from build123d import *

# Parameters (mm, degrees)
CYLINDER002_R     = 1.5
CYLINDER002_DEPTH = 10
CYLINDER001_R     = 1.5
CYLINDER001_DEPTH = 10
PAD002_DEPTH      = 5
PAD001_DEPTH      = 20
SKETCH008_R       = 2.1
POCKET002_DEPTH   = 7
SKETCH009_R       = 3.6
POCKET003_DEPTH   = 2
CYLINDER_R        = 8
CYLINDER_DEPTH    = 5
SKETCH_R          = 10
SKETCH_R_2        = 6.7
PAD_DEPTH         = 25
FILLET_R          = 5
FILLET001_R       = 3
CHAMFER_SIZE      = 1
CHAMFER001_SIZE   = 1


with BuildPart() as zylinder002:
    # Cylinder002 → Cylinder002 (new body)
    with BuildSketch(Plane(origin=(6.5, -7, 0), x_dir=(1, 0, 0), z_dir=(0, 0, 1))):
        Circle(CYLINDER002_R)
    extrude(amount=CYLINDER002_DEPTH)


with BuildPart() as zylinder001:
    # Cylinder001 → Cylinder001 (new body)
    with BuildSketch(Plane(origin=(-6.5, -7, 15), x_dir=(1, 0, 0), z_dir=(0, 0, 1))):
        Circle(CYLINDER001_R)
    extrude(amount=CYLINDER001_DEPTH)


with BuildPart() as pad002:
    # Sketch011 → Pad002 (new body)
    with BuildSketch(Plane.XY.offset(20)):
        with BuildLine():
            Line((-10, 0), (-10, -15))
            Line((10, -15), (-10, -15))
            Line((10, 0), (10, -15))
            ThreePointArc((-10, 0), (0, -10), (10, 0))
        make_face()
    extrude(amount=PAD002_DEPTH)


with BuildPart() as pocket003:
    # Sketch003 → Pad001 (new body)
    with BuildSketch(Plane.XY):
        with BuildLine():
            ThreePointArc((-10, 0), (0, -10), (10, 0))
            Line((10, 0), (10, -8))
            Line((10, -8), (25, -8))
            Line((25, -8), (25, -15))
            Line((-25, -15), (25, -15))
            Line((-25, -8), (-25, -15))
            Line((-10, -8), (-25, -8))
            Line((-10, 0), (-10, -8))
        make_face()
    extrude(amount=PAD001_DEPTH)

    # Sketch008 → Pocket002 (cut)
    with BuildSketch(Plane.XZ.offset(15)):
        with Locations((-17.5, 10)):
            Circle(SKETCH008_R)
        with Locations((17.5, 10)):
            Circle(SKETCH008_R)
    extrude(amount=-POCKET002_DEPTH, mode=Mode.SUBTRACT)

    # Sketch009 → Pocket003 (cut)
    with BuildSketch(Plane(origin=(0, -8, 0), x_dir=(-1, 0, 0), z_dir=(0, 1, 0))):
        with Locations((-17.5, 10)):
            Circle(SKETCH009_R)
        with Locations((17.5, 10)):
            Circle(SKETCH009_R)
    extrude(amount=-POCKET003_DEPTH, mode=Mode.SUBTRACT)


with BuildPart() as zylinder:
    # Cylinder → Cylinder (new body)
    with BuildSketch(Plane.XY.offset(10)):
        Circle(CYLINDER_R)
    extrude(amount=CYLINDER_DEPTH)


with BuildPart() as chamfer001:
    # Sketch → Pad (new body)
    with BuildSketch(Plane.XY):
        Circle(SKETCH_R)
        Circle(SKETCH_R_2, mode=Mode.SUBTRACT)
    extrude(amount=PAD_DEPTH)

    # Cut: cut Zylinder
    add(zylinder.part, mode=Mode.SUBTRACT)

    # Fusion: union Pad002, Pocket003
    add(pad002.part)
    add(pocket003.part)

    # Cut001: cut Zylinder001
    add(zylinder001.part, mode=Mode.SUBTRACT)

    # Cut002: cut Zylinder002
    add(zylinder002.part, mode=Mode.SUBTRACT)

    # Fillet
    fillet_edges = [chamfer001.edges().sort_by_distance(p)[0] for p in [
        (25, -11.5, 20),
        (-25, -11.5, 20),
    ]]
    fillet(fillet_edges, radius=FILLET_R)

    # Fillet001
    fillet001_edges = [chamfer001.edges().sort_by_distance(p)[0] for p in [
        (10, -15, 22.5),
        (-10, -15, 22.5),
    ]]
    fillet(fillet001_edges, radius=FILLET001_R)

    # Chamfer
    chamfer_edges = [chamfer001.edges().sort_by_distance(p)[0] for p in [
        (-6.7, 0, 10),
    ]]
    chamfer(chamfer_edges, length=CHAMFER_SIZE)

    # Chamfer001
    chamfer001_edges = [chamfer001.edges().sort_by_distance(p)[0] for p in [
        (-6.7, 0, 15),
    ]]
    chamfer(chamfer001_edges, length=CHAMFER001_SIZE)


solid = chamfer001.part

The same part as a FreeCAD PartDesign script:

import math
import FreeCAD as App
import Part
import Sketcher


def edges_at(feature, points):
    """Names of the edges that pass closest to the given points."""
    edges = feature.Shape.Edges
    near = lambda p: min(range(len(edges)), key=lambda i: edges[i].distToShape(Part.Vertex(*p))[0])
    return sorted({f"Edge{near(p) + 1}" for p in points})

doc = App.newDocument("Part")
body = doc.addObject("PartDesign::Body", "Body")

# Sketch on XY plane
sketch1 = body.newObject("Sketcher::SketchObject", "Sketch")
sketch1.AttachmentSupport = (doc.getObject("XY_Plane"), [""])
sketch1.MapMode = "FlatFace"
sketch1.addGeometry(Part.Circle(App.Vector(6.5, -7, 0), App.Vector(0, 0, 1), 1.5), False)
sketch1.addConstraint([
    Sketcher.Constraint("Diameter", 0, 3.0),
    Sketcher.Constraint("DistanceY", 0, 3, -1, 1, 7.0),
    Sketcher.Constraint("DistanceX", -1, 1, 0, 3, 6.5),
])
pad1 = body.newObject("PartDesign::Pad", "Pad")
pad1.Profile = sketch1
pad1.Length = 10
body2 = doc.addObject("PartDesign::Body", "Body001")

# Sketch on XY plane
sketch2 = body2.newObject("Sketcher::SketchObject", "Sketch001")
sketch2.AttachmentSupport = (doc.getObject("XY_Plane001"), [""])
sketch2.MapMode = "FlatFace"
sketch2.AttachmentOffset = App.Placement(App.Vector(0, 0, 15), App.Rotation())
sketch2.addGeometry(Part.Circle(App.Vector(-6.5, -7, 0), App.Vector(0, 0, 1), 1.5), False)
sketch2.addConstraint([
    Sketcher.Constraint("Diameter", 0, 3.0),
    Sketcher.Constraint("DistanceY", 0, 3, -1, 1, 7.0),
    Sketcher.Constraint("DistanceX", 0, 3, -1, 1, 6.5),
])
pad2 = body2.newObject("PartDesign::Pad", "Pad001")
pad2.Profile = sketch2
pad2.Length = 10
body3 = doc.addObject("PartDesign::Body", "Body002")

# Sketch on XY plane
sketch3 = body3.newObject("Sketcher::SketchObject", "Sketch002")
sketch3.AttachmentSupport = (doc.getObject("XY_Plane002"), [""])
sketch3.MapMode = "FlatFace"
sketch3.AttachmentOffset = App.Placement(App.Vector(0, 0, 20), App.Rotation())
sketch3.addGeometry([
    Part.LineSegment(App.Vector(-10, 0, 0), App.Vector(-10, -15, 0)),
    Part.LineSegment(App.Vector(-10, -15, 0), App.Vector(10, -15, 0)),
    Part.LineSegment(App.Vector(10, -15, 0), App.Vector(10, 0, 0)),
    Part.ArcOfCircle(Part.Circle(App.Vector(0, 0, 0), App.Vector(0, 0, 1), 10), math.radians(180), math.radians(360)),
], False)
sketch3.addConstraint([
    Sketcher.Constraint("Coincident", 0, 2, 1, 1),
    Sketcher.Constraint("Coincident", 1, 2, 2, 1),
    Sketcher.Constraint("Tangent", 2, 2, 3, 2),
    Sketcher.Constraint("Tangent", 3, 1, 0, 1),
    Sketcher.Constraint("Vertical", 0),
    Sketcher.Constraint("Horizontal", 1),
    Sketcher.Constraint("Vertical", 2),
    Sketcher.Constraint("Coincident", 3, 3, -1, 1),
    Sketcher.Constraint("Radius", 3, 10.0),
    Sketcher.Constraint("DistanceY", 0, 2, 0, 1, 15.0),
])
pad3 = body3.newObject("PartDesign::Pad", "Pad002")
pad3.Profile = sketch3
pad3.Length = 5
body4 = doc.addObject("PartDesign::Body", "Body003")

# Sketch on XY plane
sketch4 = body4.newObject("Sketcher::SketchObject", "Sketch003")
sketch4.AttachmentSupport = (doc.getObject("XY_Plane003"), [""])
sketch4.MapMode = "FlatFace"
sketch4.addGeometry([
    Part.ArcOfCircle(Part.Circle(App.Vector(0, 0, 0), App.Vector(0, 0, 1), 10), math.radians(180), math.radians(360)),  # 0
    Part.LineSegment(App.Vector(-10, 0, 0), App.Vector(-10, -8, 0)),  # 1
    Part.LineSegment(App.Vector(-10, -8, 0), App.Vector(-25, -8, 0)),  # 2
    Part.LineSegment(App.Vector(-25, -8, 0), App.Vector(-25, -15, 0)),  # 3
    Part.LineSegment(App.Vector(-25, -15, 0), App.Vector(25, -15, 0)),  # 4
    Part.LineSegment(App.Vector(25, -15, 0), App.Vector(25, -8, 0)),  # 5
    Part.LineSegment(App.Vector(25, -8, 0), App.Vector(10, -8, 0)),  # 6
    Part.LineSegment(App.Vector(10, -8, 0), App.Vector(10, 0, 0)),  # 7
], False)
sketch4.addConstraint([
    Sketcher.Constraint("Tangent", 0, 1, 1, 1),
    Sketcher.Constraint("Coincident", 1, 2, 2, 1),
    Sketcher.Constraint("Coincident", 2, 2, 3, 1),
    Sketcher.Constraint("Coincident", 3, 2, 4, 1),
    Sketcher.Constraint("Coincident", 4, 2, 5, 1),
    Sketcher.Constraint("Coincident", 5, 2, 6, 1),
    Sketcher.Constraint("Coincident", 6, 2, 7, 1),
    Sketcher.Constraint("Tangent", 7, 2, 0, 2),
    Sketcher.Constraint("Vertical", 1),
    Sketcher.Constraint("Horizontal", 2),
    Sketcher.Constraint("Vertical", 3),
    Sketcher.Constraint("Horizontal", 4),
    Sketcher.Constraint("Vertical", 5),
    Sketcher.Constraint("Horizontal", 6),
    Sketcher.Constraint("Vertical", 7),
    Sketcher.Constraint("Coincident", 0, 3, -1, 1),
    Sketcher.Constraint("Symmetric", 2, 2, 5, 2, -2),
    Sketcher.Constraint("Radius", 0, 10.0),
    Sketcher.Constraint("DistanceX", 2, 2, 2, 1, 15.0),
    Sketcher.Constraint("DistanceY", 1, 2, 1, 1, 8.0),
    Sketcher.Constraint("DistanceY", 3, 2, 3, 1, 7.0),
])
pad4 = body4.newObject("PartDesign::Pad", "Pad003")
pad4.Profile = sketch4
pad4.Length = 20

# Sketch on XZ plane
sketch5 = body4.newObject("Sketcher::SketchObject", "Sketch004")
sketch5.AttachmentSupport = (doc.getObject("XZ_Plane003"), [""])
sketch5.MapMode = "FlatFace"
sketch5.AttachmentOffset = App.Placement(App.Vector(0, 0, 15), App.Rotation())
sketch5.addGeometry([
    Part.Circle(App.Vector(-17.5, 10, 0), App.Vector(0, 0, 1), 2.1),
    Part.Circle(App.Vector(17.5, 10, 0), App.Vector(0, 0, 1), 2.1),
], False)
sketch5.addConstraint([
    Sketcher.Constraint("Equal", 0, 1),
    Sketcher.Constraint("Symmetric", 0, 3, 1, 3, -2),
    Sketcher.Constraint("Diameter", 0, 4.2),
    Sketcher.Constraint("DistanceY", -1, 1, 0, 3, 10.0),
    Sketcher.Constraint("DistanceX", 0, 3, 1, 3, 35.0),
])
pocket1 = body4.newObject("PartDesign::Pocket", "Pocket")
pocket1.Profile = sketch5
pocket1.Length = 7

# Sketch on XZ plane
sketch6 = body4.newObject("Sketcher::SketchObject", "Sketch005")
sketch6.AttachmentSupport = (doc.getObject("XZ_Plane003"), [""])
sketch6.MapMode = "FlatFace"
sketch6.AttachmentOffset = App.Placement(App.Vector(0, 0, 8), App.Rotation())
sketch6.addGeometry([
    Part.Circle(App.Vector(17.5, 10, 0), App.Vector(0, 0, 1), 3.6),
    Part.Circle(App.Vector(-17.5, 10, 0), App.Vector(0, 0, 1), 3.6),
], False)
sketch6.addConstraint([
    Sketcher.Constraint("Equal", 0, 1),
    Sketcher.Constraint("Symmetric", 0, 3, 1, 3, -2),
    Sketcher.Constraint("Diameter", 0, 7.2),
    Sketcher.Constraint("DistanceY", -1, 1, 0, 3, 10.0),
    Sketcher.Constraint("DistanceX", 1, 3, 0, 3, 35.0),
])
pocket2 = body4.newObject("PartDesign::Pocket", "Pocket001")
pocket2.Profile = sketch6
pocket2.Length = 2
pocket2.Reversed = True
body5 = doc.addObject("PartDesign::Body", "Body004")

# Sketch on XY plane
sketch7 = body5.newObject("Sketcher::SketchObject", "Sketch006")
sketch7.AttachmentSupport = (doc.getObject("XY_Plane004"), [""])
sketch7.MapMode = "FlatFace"
sketch7.AttachmentOffset = App.Placement(App.Vector(0, 0, 10), App.Rotation())
sketch7.addGeometry(Part.Circle(App.Vector(0, 0, 0), App.Vector(0, 0, 1), 8), False)
sketch7.addConstraint([
    Sketcher.Constraint("Coincident", 0, 3, -1, 1),
    Sketcher.Constraint("Diameter", 0, 16.0),
])
pad5 = body5.newObject("PartDesign::Pad", "Pad004")
pad5.Profile = sketch7
pad5.Length = 5
body6 = doc.addObject("PartDesign::Body", "Body005")

# Sketch on XY plane
sketch8 = body6.newObject("Sketcher::SketchObject", "Sketch007")
sketch8.AttachmentSupport = (doc.getObject("XY_Plane005"), [""])
sketch8.MapMode = "FlatFace"
sketch8.addGeometry([
    Part.Circle(App.Vector(0, 0, 0), App.Vector(0, 0, 1), 10),
    Part.Circle(App.Vector(0, 0, 0), App.Vector(0, 0, 1), 6.7),
], False)
sketch8.addConstraint([
    Sketcher.Constraint("Coincident", 0, 3, -1, 1),
    Sketcher.Constraint("Coincident", 1, 3, -1, 1),
    Sketcher.Constraint("Diameter", 0, 20.0),
    Sketcher.Constraint("Diameter", 1, 13.4),
])
pad6 = body6.newObject("PartDesign::Pad", "Pad005")
pad6.Profile = sketch8
pad6.Length = 25
doc.recompute()

boolean = body6.newObject("PartDesign::Boolean", "Boolean")
boolean.Type = "Cut"
boolean.addObjects([body5])
doc.recompute()

boolean2 = body6.newObject("PartDesign::Boolean", "Boolean001")
boolean2.Type = "Fuse"
boolean2.addObjects([body3])
doc.recompute()

boolean3 = body6.newObject("PartDesign::Boolean", "Boolean002")
boolean3.Type = "Fuse"
boolean3.addObjects([body4])
doc.recompute()

boolean4 = body6.newObject("PartDesign::Boolean", "Boolean003")
boolean4.Type = "Cut"
boolean4.addObjects([body2])
doc.recompute()

boolean5 = body6.newObject("PartDesign::Boolean", "Boolean004")
boolean5.Type = "Cut"
boolean5.addObjects([body])
doc.recompute()

fillet = body6.newObject("PartDesign::Fillet", "Fillet")
fillet.Base = (boolean5, edges_at(boolean5, [(25, -11.5, 20), (-25, -11.5, 20)]))
fillet.Radius = 5
doc.recompute()

fillet2 = body6.newObject("PartDesign::Fillet", "Fillet001")
fillet2.Base = (fillet, edges_at(fillet, [(10, -15, 22.5), (-10, -15, 22.5)]))
fillet2.Radius = 3
doc.recompute()

chamfer = body6.newObject("PartDesign::Chamfer", "Chamfer")
chamfer.Base = (fillet2, edges_at(fillet2, [(-6.7, 0, 10)]))
chamfer.Size = 1
doc.recompute()

chamfer2 = body6.newObject("PartDesign::Chamfer", "Chamfer001")
chamfer2.Base = (chamfer, edges_at(chamfer, [(-6.7, 0, 15)]))
chamfer2.Size = 1

doc.recompute()
